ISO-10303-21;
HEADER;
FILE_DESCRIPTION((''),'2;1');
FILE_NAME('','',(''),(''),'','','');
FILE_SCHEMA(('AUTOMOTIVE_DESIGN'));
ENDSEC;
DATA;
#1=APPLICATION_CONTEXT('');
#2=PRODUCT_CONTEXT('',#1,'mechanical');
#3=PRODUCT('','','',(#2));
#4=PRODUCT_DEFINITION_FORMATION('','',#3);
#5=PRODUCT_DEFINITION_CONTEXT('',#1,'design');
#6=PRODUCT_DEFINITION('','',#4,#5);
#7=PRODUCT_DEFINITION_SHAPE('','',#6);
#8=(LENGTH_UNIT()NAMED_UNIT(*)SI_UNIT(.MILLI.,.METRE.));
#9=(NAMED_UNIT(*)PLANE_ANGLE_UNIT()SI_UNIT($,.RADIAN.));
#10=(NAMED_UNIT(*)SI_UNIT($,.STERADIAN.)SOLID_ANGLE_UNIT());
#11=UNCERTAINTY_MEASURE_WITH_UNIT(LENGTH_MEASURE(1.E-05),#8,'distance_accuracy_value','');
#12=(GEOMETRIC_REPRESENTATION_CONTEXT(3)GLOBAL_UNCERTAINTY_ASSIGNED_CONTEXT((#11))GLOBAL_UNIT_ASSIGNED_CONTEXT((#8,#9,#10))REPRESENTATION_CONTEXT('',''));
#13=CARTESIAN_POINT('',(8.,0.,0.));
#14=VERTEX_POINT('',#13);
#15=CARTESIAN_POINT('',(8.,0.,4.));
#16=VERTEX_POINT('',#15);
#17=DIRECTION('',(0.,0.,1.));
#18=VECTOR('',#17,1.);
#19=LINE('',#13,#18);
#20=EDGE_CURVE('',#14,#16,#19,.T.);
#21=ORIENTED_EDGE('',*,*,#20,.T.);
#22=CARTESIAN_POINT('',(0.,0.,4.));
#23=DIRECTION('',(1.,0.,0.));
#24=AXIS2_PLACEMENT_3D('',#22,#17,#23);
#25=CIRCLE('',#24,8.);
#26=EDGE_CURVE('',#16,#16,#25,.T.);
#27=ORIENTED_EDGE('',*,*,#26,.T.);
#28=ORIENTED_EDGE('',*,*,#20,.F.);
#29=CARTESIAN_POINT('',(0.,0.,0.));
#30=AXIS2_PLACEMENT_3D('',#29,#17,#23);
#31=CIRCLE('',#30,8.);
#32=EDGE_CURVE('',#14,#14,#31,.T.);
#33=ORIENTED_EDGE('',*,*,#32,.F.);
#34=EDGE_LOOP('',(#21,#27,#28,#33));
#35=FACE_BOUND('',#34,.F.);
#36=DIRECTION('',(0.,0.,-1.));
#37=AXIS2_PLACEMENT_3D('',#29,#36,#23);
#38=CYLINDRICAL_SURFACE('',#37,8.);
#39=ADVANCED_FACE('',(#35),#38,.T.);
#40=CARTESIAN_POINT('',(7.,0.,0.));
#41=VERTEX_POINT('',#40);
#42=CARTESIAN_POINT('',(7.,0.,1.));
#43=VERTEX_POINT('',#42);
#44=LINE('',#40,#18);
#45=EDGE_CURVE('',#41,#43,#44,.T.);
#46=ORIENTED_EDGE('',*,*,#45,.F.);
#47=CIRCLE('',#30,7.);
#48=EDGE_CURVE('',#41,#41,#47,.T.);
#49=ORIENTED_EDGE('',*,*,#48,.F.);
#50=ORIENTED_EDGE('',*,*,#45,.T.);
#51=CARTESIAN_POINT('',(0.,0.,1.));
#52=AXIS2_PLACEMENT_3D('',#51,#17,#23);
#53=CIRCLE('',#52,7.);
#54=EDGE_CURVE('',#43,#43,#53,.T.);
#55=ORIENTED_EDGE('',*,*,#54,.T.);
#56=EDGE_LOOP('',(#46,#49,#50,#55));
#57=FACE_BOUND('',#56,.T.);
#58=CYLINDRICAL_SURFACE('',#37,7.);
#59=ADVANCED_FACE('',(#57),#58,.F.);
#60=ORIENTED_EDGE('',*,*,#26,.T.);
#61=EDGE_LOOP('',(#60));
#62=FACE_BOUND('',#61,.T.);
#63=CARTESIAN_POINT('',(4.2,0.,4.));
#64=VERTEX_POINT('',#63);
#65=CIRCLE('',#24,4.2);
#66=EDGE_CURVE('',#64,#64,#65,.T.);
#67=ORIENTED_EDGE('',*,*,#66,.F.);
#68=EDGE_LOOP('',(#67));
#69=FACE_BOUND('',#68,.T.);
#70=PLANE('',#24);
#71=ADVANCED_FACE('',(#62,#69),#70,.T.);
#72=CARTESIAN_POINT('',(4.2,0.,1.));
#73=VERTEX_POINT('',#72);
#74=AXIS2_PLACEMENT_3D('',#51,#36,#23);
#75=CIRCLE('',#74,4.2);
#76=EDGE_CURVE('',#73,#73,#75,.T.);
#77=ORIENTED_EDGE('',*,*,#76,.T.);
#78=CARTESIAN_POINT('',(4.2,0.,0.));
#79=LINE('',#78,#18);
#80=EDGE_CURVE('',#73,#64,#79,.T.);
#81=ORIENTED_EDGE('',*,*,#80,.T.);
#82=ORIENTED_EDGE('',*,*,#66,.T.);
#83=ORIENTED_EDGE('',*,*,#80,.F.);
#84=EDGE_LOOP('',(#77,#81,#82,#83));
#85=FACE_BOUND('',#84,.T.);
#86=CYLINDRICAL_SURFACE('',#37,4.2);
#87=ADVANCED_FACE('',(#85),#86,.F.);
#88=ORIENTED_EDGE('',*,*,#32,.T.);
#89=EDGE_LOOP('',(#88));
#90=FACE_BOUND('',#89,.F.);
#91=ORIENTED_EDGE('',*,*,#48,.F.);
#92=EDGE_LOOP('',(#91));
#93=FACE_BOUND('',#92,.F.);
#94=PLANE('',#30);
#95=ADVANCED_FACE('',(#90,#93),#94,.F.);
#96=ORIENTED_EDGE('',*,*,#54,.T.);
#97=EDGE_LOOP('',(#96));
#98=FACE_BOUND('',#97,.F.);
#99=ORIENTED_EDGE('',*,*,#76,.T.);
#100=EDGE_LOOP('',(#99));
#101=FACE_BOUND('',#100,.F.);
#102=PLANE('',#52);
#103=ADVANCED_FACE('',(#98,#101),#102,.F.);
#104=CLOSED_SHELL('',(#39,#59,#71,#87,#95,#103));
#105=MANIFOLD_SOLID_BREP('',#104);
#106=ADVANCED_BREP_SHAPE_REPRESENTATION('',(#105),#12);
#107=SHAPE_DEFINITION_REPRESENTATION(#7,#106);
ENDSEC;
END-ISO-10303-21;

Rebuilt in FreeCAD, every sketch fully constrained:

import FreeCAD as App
import Part
import Sketcher
from FreeCAD import Vector
Q = App.Units.Quantity

doc = App.newDocument("Part")
body = doc.addObject("PartDesign::Body", "Body")

# Sketch on XY plane
sketch1 = body.newObject("Sketcher::SketchObject", "Sketch")
sketch1.AttachmentSupport = (doc.getObject("XY_Plane"), [""])
sketch1.MapMode = "FlatFace"
sketch1.addGeometry(Part.Circle(Vector(0, 0, 0), Vector(0, 0, 1), 7), False)
sketch1.addConstraint(Sketcher.Constraint("Coincident", 0, 3, -1, 1))
sketch1.addConstraint(Sketcher.Constraint("Diameter", 0, Q("14 mm")))
pad1 = body.newObject("PartDesign::Pad", "Pad")
pad1.Profile = sketch1
pad1.Length = 1
body2 = doc.addObject("PartDesign::Body", "Body001")

# Sketch on XY plane
sketch2 = body2.newObject("Sketcher::SketchObject", "Sketch001")
sketch2.AttachmentSupport = (doc.getObject("XY_Plane001"), [""])
sketch2.MapMode = "FlatFace"
sketch2.addGeometry(Part.Circle(Vector(0, 0, 0), Vector(0, 0, 1), 8), False)
sketch2.addGeometry(Part.Circle(Vector(0, 0, 0), Vector(0, 0, 1), 4.2), False)
sketch2.addConstraint(Sketcher.Constraint("Coincident", 0, 3, -1, 1))
sketch2.addConstraint(Sketcher.Constraint("Coincident", 1, 3, -1, 1))
sketch2.addConstraint(Sketcher.Constraint("Diameter", 0, Q("16 mm")))
sketch2.addConstraint(Sketcher.Constraint("Diameter", 1, Q("8.4 mm")))
pad2 = body2.newObject("PartDesign::Pad", "Pad001")
pad2.Profile = sketch2
pad2.Length = 4
doc.recompute()

boolean = body2.newObject("PartDesign::Boolean", "Boolean")
boolean.Type = "Cut"
boolean.addObjects([body])

doc.recompute()
